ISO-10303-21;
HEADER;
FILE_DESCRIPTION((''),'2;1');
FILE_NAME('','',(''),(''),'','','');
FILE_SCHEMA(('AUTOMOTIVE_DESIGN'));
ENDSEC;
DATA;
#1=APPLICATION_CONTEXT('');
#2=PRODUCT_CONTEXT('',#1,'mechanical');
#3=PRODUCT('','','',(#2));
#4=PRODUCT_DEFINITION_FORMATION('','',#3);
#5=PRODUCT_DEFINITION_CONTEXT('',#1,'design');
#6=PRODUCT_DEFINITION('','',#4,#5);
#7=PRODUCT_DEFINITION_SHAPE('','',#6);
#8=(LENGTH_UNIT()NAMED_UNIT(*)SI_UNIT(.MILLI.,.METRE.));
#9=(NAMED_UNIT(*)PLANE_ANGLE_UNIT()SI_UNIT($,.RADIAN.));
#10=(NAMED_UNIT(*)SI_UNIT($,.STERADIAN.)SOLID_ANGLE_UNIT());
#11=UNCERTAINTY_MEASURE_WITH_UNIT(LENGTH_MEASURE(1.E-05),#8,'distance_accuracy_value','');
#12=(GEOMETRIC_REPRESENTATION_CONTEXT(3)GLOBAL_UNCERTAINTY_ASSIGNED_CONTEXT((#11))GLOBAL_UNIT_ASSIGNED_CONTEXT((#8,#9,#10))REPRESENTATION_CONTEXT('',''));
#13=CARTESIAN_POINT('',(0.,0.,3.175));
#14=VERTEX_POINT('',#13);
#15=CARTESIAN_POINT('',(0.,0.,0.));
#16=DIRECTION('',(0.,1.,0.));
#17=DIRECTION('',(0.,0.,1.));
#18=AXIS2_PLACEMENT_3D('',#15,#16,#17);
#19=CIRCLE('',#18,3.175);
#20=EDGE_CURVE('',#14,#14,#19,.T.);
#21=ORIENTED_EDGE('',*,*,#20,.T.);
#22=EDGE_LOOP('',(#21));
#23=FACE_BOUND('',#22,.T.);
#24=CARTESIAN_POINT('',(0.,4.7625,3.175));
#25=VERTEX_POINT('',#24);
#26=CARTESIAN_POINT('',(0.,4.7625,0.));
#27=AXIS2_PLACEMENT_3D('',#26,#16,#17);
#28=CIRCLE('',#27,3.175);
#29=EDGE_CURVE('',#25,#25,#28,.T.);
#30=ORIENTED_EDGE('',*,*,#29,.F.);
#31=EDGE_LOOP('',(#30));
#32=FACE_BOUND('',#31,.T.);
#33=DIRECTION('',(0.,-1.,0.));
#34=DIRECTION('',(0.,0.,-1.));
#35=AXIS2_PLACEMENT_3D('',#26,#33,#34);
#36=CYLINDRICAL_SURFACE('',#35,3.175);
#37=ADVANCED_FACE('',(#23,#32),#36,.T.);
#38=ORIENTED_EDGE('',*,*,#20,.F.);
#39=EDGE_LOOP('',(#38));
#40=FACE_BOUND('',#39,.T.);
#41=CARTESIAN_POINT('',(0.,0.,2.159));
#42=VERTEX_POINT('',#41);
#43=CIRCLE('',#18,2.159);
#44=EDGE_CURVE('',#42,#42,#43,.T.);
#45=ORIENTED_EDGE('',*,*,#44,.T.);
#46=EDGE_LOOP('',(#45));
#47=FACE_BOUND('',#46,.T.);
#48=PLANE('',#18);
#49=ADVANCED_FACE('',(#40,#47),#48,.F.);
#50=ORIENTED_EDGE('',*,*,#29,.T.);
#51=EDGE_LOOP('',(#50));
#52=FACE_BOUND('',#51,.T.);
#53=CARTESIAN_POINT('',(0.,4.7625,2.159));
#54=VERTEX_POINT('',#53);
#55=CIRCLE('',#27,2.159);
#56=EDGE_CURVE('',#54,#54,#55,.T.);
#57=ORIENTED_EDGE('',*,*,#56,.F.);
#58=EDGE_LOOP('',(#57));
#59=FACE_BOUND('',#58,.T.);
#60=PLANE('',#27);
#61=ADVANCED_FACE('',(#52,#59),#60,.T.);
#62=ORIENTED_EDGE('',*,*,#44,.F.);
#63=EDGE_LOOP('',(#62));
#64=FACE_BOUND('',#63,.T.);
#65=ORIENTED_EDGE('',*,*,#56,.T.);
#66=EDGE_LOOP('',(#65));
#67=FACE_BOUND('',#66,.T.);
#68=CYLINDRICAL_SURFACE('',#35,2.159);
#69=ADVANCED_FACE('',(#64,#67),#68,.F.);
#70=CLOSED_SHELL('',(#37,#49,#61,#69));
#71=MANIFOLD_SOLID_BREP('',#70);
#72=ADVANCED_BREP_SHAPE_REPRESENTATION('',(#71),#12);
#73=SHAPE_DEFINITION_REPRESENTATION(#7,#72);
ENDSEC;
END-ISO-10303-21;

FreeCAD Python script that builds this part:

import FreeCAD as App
import Part
import Sketcher

V = App.Vector
Q = App.Units.Quantity

doc = App.newDocument("Part")
body = doc.addObject("PartDesign::Body", "Body")

# Sketch on XZ plane
sketch1 = doc.addObject("Sketcher::SketchObject", "Sketch")
body.addObject(sketch1)
sketch1.AttachmentSupport = (doc.XZ_Plane, [""])
sketch1.MapMode = "FlatFace"
sketch1.addGeometry(Part.Circle(V(0, 0, 0), V(0, 0, 1), 3.175), False)
sketch1.addGeometry(Part.Circle(V(0, 0, 0), V(0, 0, 1), 2.159), False)
sketch1.addConstraint(Sketcher.Constraint("Coincident", 0, 3, -1, 1))
sketch1.addConstraint(Sketcher.Constraint("Coincident", 1, 3, -1, 1))
sketch1.addConstraint(Sketcher.Constraint("Diameter", 0, Q("0.25 in")))
sketch1.addConstraint(Sketcher.Constraint("Diameter", 1, Q("0.17 in")))
pad1 = doc.addObject("PartDesign::Pad", "Pad")
body.addObject(pad1)
pad1.Profile = sketch1
pad1.Length = Q("0.1875 in")
pad1.Reversed = True

doc.recompute()
